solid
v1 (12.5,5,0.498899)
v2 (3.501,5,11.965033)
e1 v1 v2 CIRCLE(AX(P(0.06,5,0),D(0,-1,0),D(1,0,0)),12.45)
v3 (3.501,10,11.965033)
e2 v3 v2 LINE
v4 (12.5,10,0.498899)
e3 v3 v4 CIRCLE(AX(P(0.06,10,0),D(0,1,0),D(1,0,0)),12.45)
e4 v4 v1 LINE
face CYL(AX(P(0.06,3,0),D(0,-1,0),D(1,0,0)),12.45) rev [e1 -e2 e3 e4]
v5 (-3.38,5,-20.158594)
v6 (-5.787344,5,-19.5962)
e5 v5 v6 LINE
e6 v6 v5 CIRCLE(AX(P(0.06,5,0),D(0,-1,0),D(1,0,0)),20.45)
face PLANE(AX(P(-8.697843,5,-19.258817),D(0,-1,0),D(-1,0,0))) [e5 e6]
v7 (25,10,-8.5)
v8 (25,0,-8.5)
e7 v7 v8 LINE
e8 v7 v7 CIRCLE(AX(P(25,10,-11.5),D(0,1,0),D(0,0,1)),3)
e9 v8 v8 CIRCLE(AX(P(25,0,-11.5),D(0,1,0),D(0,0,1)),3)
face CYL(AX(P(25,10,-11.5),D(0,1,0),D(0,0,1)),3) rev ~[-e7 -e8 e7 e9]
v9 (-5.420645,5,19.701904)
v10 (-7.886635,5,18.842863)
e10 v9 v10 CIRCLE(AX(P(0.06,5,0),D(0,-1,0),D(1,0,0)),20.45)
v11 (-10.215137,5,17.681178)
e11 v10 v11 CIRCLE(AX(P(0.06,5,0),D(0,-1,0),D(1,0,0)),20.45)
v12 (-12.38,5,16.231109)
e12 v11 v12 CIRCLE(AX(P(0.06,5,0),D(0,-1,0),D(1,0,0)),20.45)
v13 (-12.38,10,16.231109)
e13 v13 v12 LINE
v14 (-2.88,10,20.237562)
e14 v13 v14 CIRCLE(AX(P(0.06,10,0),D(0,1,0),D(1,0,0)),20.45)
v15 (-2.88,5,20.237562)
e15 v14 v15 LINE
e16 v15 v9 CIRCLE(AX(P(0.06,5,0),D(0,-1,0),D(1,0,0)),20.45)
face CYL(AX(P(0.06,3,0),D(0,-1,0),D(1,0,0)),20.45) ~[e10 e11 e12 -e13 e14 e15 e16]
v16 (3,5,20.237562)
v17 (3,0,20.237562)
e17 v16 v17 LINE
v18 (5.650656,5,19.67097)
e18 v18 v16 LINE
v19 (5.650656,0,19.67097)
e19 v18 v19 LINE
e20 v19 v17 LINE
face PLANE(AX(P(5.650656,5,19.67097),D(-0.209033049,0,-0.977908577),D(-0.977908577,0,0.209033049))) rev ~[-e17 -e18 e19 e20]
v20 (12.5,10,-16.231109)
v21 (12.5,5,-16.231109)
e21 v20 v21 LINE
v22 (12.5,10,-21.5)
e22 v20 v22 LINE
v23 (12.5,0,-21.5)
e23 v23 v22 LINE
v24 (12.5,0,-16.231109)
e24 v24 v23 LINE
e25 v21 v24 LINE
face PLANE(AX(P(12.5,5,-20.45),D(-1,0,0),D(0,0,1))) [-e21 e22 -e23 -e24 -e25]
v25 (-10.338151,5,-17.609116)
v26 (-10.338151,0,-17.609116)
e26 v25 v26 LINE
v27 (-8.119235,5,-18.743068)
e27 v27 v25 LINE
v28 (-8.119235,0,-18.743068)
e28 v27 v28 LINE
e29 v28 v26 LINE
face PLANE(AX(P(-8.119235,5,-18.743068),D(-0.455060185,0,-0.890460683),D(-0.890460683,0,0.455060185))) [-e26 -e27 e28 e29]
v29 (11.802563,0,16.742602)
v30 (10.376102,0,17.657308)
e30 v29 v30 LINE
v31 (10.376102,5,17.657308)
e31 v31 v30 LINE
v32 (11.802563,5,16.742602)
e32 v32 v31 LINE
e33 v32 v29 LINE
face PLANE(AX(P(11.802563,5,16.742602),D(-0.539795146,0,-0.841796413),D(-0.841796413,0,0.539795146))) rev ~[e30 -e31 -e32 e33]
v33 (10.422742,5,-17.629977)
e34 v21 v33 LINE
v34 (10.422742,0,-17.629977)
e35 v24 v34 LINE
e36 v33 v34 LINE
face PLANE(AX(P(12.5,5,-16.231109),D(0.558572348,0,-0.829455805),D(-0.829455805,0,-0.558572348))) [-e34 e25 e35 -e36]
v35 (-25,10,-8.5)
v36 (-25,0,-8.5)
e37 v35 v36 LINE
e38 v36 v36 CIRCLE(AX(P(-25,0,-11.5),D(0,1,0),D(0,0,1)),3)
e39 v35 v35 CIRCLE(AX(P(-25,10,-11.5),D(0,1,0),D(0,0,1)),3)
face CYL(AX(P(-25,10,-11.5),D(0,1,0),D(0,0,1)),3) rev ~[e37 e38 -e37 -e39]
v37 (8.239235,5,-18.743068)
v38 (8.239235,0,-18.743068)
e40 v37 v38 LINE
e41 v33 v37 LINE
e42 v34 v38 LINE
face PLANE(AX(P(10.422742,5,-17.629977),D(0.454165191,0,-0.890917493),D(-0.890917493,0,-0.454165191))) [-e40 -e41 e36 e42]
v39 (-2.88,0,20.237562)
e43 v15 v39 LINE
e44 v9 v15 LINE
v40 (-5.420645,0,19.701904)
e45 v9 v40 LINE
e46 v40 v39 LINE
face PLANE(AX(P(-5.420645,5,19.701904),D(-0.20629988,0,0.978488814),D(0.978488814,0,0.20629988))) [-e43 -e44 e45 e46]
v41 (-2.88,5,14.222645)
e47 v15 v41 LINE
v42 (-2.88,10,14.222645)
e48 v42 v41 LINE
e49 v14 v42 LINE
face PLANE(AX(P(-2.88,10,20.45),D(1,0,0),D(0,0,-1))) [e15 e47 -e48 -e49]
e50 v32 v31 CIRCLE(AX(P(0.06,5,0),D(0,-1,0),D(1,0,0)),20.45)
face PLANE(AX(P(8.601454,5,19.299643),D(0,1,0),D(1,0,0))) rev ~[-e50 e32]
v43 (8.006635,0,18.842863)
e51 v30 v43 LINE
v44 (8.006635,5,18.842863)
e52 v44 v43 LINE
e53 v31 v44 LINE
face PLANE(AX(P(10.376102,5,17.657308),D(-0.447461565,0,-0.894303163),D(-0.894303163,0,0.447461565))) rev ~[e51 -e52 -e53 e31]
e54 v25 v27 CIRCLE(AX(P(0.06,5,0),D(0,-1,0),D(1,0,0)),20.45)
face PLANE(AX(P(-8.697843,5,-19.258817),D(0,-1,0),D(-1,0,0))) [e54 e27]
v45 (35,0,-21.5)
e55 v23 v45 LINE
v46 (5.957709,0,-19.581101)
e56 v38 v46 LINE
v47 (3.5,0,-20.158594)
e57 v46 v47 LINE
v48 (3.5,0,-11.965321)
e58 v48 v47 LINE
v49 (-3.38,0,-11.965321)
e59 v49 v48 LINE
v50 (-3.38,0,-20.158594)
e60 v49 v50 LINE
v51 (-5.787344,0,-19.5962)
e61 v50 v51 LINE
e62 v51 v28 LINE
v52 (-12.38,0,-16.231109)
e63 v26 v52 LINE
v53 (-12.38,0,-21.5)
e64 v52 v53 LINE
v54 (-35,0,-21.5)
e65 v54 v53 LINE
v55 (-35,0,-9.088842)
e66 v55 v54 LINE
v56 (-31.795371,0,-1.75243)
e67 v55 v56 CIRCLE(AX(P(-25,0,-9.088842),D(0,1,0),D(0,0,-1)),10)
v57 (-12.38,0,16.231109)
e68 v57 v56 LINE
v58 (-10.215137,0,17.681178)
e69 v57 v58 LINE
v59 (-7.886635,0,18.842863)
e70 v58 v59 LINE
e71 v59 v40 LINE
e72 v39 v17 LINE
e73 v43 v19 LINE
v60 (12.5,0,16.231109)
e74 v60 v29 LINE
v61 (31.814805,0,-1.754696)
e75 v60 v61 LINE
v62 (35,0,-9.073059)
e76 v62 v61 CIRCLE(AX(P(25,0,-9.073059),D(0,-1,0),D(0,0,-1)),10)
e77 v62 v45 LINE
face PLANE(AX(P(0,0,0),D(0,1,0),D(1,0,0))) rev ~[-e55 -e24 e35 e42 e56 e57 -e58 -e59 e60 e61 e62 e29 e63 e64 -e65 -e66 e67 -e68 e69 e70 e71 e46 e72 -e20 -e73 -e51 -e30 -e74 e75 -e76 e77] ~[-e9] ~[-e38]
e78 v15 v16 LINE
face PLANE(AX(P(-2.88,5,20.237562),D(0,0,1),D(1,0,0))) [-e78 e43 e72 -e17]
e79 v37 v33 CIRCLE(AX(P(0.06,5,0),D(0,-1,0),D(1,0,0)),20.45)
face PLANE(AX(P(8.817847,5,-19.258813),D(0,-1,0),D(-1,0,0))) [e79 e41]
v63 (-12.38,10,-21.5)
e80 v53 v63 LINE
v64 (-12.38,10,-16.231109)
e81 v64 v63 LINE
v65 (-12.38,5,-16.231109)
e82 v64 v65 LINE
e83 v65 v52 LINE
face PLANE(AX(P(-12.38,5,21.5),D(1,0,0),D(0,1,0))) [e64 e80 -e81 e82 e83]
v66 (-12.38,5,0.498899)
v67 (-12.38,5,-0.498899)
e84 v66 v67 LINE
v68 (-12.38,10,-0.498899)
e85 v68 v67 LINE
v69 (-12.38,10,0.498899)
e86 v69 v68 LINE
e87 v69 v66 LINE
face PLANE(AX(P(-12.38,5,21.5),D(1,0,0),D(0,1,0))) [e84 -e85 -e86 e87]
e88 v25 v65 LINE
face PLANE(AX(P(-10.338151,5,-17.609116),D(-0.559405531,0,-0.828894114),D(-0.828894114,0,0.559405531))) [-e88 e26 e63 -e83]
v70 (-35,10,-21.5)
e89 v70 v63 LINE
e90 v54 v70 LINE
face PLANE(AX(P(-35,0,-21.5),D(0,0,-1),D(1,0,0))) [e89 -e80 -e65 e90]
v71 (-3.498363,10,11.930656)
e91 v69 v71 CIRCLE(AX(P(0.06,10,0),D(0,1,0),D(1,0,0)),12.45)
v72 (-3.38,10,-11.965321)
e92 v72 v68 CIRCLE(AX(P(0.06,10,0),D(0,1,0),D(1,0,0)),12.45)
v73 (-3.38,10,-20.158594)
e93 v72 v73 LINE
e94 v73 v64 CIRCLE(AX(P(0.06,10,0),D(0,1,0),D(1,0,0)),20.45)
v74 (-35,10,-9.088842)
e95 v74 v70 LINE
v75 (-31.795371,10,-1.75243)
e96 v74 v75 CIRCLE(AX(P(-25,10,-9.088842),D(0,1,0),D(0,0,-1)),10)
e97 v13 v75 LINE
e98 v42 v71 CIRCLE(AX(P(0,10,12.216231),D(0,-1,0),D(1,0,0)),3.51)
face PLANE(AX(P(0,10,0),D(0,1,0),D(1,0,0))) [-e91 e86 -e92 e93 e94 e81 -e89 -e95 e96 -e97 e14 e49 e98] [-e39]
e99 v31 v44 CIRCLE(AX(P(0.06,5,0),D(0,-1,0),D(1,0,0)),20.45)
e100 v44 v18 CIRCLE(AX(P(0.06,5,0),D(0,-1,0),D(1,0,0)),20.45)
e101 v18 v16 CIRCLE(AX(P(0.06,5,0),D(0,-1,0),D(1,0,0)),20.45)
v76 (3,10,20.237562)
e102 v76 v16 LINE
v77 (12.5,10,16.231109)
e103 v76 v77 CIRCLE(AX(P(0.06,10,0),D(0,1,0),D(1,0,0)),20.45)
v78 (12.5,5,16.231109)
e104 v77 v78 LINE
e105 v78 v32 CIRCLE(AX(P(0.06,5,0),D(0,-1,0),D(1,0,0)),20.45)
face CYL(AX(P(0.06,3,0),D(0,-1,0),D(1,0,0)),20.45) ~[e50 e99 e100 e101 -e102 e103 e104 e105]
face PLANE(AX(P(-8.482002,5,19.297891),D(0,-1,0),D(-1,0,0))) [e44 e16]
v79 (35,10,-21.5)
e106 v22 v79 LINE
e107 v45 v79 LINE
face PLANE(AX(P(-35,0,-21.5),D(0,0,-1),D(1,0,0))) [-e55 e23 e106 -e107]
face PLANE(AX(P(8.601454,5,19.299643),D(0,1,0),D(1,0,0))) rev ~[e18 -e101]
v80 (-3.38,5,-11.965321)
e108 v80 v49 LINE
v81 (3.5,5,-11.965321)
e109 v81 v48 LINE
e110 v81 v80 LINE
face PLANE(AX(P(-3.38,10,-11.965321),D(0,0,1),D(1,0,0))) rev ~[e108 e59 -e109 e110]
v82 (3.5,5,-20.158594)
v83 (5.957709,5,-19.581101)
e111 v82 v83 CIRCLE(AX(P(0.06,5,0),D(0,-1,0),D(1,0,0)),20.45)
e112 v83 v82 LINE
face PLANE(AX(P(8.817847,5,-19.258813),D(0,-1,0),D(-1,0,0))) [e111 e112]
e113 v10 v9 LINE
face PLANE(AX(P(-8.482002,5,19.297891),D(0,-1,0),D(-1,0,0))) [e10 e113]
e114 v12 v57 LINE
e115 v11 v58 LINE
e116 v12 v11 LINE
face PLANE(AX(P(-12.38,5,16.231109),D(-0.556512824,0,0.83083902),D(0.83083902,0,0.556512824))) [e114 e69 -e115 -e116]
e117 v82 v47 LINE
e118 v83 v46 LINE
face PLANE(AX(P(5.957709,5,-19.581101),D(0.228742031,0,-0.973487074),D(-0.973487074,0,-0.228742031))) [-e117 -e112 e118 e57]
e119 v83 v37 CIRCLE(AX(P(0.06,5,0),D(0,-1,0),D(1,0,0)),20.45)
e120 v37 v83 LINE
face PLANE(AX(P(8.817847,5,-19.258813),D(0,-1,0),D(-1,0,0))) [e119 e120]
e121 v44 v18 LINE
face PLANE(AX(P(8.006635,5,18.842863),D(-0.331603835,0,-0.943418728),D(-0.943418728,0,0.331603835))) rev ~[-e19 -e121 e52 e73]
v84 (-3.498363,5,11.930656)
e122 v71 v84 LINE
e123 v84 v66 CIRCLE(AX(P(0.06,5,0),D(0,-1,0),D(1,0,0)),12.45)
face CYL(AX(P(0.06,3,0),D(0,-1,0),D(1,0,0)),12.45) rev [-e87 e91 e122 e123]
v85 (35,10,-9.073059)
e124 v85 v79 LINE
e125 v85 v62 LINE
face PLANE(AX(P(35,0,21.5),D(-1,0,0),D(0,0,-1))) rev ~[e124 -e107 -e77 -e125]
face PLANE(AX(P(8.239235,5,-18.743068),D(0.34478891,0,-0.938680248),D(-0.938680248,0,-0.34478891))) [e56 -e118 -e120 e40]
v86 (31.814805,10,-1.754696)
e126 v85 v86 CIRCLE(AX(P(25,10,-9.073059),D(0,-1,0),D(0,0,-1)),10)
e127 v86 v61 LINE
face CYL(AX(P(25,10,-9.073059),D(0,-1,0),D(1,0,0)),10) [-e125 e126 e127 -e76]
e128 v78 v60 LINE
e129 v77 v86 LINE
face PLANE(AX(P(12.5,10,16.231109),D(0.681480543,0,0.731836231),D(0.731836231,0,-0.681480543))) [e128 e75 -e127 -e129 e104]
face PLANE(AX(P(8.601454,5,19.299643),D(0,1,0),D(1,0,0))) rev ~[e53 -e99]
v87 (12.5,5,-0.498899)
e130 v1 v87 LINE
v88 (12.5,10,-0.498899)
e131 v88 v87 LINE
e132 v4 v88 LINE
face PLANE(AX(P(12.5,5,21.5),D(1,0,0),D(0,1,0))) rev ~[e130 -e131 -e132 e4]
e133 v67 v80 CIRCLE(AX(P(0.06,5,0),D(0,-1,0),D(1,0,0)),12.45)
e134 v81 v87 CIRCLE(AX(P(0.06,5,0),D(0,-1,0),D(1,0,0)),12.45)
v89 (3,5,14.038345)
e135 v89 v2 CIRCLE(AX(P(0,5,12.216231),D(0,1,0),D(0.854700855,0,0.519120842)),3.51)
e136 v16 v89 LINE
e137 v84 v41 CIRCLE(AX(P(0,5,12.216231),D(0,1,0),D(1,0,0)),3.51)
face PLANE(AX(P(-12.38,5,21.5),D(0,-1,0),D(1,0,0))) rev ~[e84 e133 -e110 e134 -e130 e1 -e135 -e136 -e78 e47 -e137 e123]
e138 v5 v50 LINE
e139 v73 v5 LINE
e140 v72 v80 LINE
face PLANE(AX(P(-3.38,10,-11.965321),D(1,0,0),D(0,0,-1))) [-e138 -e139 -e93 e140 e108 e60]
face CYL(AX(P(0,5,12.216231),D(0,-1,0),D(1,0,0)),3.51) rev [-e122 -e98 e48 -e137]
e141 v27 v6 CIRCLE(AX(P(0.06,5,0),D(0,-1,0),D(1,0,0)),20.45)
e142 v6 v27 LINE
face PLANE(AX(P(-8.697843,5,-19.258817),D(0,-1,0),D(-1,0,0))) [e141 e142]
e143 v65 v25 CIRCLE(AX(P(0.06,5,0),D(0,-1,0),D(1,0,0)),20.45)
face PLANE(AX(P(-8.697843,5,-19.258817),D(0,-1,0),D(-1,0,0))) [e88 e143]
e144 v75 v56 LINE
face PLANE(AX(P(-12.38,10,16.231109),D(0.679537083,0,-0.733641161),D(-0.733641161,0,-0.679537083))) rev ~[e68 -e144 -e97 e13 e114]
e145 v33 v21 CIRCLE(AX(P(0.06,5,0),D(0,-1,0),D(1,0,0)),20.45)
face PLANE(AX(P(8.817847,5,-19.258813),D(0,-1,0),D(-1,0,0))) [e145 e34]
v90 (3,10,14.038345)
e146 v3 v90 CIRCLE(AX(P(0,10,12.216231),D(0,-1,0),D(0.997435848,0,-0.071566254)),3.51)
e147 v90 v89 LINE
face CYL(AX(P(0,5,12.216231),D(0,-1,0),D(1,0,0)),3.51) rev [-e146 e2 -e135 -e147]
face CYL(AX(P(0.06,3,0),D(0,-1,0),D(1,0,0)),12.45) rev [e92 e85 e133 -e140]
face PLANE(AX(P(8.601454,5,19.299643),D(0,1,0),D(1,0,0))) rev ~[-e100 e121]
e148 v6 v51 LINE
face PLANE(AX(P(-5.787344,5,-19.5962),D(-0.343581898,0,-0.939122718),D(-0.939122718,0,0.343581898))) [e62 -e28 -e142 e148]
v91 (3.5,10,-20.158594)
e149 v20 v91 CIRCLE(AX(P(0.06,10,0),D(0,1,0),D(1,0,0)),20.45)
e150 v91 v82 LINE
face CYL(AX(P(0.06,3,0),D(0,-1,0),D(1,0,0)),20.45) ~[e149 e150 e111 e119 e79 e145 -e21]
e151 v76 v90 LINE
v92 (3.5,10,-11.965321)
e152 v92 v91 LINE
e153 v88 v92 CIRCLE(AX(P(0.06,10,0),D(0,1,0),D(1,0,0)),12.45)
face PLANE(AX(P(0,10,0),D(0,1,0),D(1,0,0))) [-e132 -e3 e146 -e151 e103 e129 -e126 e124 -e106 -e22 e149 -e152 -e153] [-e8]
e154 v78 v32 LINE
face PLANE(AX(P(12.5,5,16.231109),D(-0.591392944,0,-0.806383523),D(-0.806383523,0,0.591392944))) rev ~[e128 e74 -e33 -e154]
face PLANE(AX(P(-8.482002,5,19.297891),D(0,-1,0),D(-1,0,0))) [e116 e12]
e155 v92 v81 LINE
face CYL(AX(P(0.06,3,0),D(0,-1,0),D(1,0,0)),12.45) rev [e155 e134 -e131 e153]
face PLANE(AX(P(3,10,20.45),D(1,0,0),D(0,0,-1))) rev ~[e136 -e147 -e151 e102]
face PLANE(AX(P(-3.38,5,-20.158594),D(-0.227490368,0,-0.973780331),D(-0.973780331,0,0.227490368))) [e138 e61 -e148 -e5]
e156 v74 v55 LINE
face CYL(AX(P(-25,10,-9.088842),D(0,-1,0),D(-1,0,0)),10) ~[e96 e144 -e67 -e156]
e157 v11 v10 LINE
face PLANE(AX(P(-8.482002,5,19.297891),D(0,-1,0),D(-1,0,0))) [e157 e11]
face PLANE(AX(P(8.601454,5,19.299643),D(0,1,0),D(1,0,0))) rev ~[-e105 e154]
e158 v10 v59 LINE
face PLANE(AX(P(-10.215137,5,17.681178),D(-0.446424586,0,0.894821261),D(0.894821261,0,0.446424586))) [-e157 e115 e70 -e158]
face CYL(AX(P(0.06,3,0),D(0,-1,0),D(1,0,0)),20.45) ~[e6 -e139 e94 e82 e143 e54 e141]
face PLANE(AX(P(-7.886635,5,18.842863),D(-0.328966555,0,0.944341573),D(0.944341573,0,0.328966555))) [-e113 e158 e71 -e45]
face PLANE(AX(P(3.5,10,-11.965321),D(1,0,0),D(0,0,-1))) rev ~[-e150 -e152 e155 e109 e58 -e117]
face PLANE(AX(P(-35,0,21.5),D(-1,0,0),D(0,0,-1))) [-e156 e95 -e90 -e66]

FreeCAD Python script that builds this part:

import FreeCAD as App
import Part
import Sketcher

V = App.Vector


def edges_at(feature, points):
    """Names of the edges that pass closest to the given points."""
    edges = feature.Shape.Edges
    near = lambda p: min(range(len(edges)), key=lambda i: edges[i].distToShape(Part.Vertex(*p))[0])
    return sorted({f"Edge{near(p) + 1}" for p in points})


def add_polygon(sketch, points):
    """Adds a closed chain of lines whose ends are joined by coincident constraints."""
    first, n = sketch.GeometryCount, len(points)
    for a, b in zip(points, points[1:] + points[:1]):
        sketch.addGeometry(Part.LineSegment(App.Vector(*a, 0), App.Vector(*b, 0)), False)
    for i in range(n):
        sketch.addConstraint(Sketcher.Constraint("Coincident", first + i, 2, first + (i + 1) % n, 1))

doc = App.newDocument("Part")
body = doc.addObject("PartDesign::Body", "Body")

# Sketch on XZ plane
sketch1 = body.newObject("Sketcher::SketchObject", "Sketch")
sketch1.AttachmentSupport = (doc.getObject("XZ_Plane"), [""])
sketch1.MapMode = "FlatFace"
add_polygon(sketch1, [(-35, -21.5), (-35, 21.5), (35, 21.5), (35, -21.5)])  # lines 0-3
sketch1.addConstraint(Sketcher.Constraint("Vertical", 0))
sketch1.addConstraint(Sketcher.Constraint("Horizontal", 1))
sketch1.addConstraint(Sketcher.Constraint("Vertical", 2))
sketch1.addConstraint(Sketcher.Constraint("Horizontal", 3))
sketch1.addConstraint(Sketcher.Constraint("Symmetric", 0, 2, 2, 2, -1, 1))
sketch1.addConstraint(Sketcher.Constraint("DistanceX", 1, 1, 1, 2, 70.0))
sketch1.addConstraint(Sketcher.Constraint("DistanceY", 0, 1, 0, 2, 43.0))
pad1 = body.newObject("PartDesign::Pad", "Pad")
pad1.Profile = sketch1
pad1.Length = 10
pad1.Reversed = True

# Sketch on XY plane
sketch2 = body.newObject("Sketcher::SketchObject", "Sketch001")
sketch2.AttachmentSupport = (doc.getObject("XY_Plane"), [""])
sketch2.MapMode = "FlatFace"
sketch2.AttachmentOffset = App.Placement(V(0, 0, 21.5), App.Rotation())
add_polygon(sketch2, [(-12.38, 10), (-12.38, 5), (12.5, 5), (12.5, 10)])  # lines 0-3
sketch2.addConstraint(Sketcher.Constraint("Vertical", 0))
sketch2.addConstraint(Sketcher.Constraint("Horizontal", 1))
sketch2.addConstraint(Sketcher.Constraint("Vertical", 2))
sketch2.addConstraint(Sketcher.Constraint("Horizontal", 3))
sketch2.addConstraint(Sketcher.Constraint("DistanceY", 0, 2, 0, 1, 5.0))
sketch2.addConstraint(Sketcher.Constraint("DistanceY", -1, 1, 0, 2, 5.0))
sketch2.addConstraint(Sketcher.Constraint("DistanceX", 1, 1, 1, 2, 24.88))
sketch2.addConstraint(Sketcher.Constraint("DistanceX", -1, 1, 1, 2, 12.5))
pocket1 = body.newObject("PartDesign::Pocket", "Pocket")
pocket1.Profile = sketch2
pocket1.Type = "ThroughAll"

# Sketch on XZ plane
sketch3 = body.newObject("Sketcher::SketchObject", "Sketch002")
sketch3.AttachmentSupport = (doc.getObject("XZ_Plane"), [""])
sketch3.MapMode = "FlatFace"
sketch3.AttachmentOffset = App.Placement(V(0, 0, -5), App.Rotation())
sketch3.addGeometry(Part.Circle(V(0.06, 0, 0), V(0, 0, 1), 20.45), False)
sketch3.addGeometry(Part.Circle(V(0.06, 0, 0), V(0, 0, 1), 12.45), False)
sketch3.addConstraint(Sketcher.Constraint("Coincident", 1, 3, 0, 3))
sketch3.addConstraint(Sketcher.Constraint("PointOnObject", 0, 3, -1))
sketch3.addConstraint(Sketcher.Constraint("Diameter", 0, 40.9))
sketch3.addConstraint(Sketcher.Constraint("Diameter", 1, 24.9))
sketch3.addConstraint(Sketcher.Constraint("DistanceX", -1, 1, 0, 3, 0.06))
pad2 = body.newObject("PartDesign::Pad", "Pad001")
pad2.Profile = sketch3
pad2.Type = "TwoLengths"
pad2.Length = 5
pad2.Length2 = 2
pad2.Reversed = True

# Sketch on XZ plane
sketch4 = body.newObject("Sketcher::SketchObject", "Sketch003")
sketch4.AttachmentSupport = (doc.getObject("XZ_Plane"), [""])
sketch4.MapMode = "FlatFace"
sketch4.AttachmentOffset = App.Placement(V(0, 0, -5), App.Rotation())
add_polygon(sketch4, [(12.5, 20.45), (-12.38, 20.45), (-12.38, 21.5), (12.5, 21.5)])  # lines 0-3
sketch4.addConstraint(Sketcher.Constraint("Horizontal", 0))
sketch4.addConstraint(Sketcher.Constraint("Vertical", 1))
sketch4.addConstraint(Sketcher.Constraint("Horizontal", 2))
sketch4.addConstraint(Sketcher.Constraint("Vertical", 3))
sketch4.addConstraint(Sketcher.Constraint("DistanceX", 0, 2, 0, 1, 24.88))
sketch4.addConstraint(Sketcher.Constraint("DistanceY", 1, 1, 1, 2, 1.05))
sketch4.addConstraint(Sketcher.Constraint("DistanceY", -1, 1, 1, 2, 21.5))
sketch4.addConstraint(Sketcher.Constraint("DistanceX", -1, 1, 2, 2, 12.5))
pocket2 = body.newObject("PartDesign::Pocket", "Pocket001")
pocket2.Profile = sketch4
pocket2.Length = 5
pocket2.Reversed = True

# Sketch on XZ plane
sketch5 = body.newObject("Sketcher::SketchObject", "Sketch004")
sketch5.AttachmentSupport = (doc.getObject("XZ_Plane"), [""])
sketch5.MapMode = "FlatFace"
sketch5.AttachmentOffset = App.Placement(V(0, 0, -5), App.Rotation())
add_polygon(sketch5, [(12.5, -20.45), (12.5, -21.5), (-12.38, -21.5), (-12.38, -20.45)])  # lines 0-3
sketch5.addConstraint(Sketcher.Constraint("Vertical", 0))
sketch5.addConstraint(Sketcher.Constraint("Horizontal", 1))
sketch5.addConstraint(Sketcher.Constraint("Vertical", 2))
sketch5.addConstraint(Sketcher.Constraint("Horizontal", 3))
sketch5.addConstraint(Sketcher.Constraint("DistanceX", 1, 2, 1, 1, 24.88))
sketch5.addConstraint(Sketcher.Constraint("DistanceY", 0, 2, 0, 1, 1.05))
sketch5.addConstraint(Sketcher.Constraint("DistanceX", -1, 1, 0, 2, 12.5))
sketch5.addConstraint(Sketcher.Constraint("DistanceY", 0, 2, -1, 1, 21.5))
pocket3 = body.newObject("PartDesign::Pocket", "Pocket002")
pocket3.Profile = sketch5
pocket3.Length = 5
pocket3.Reversed = True

# Sketch on XZ plane
sketch6 = body.newObject("Sketcher::SketchObject", "Sketch005")
sketch6.AttachmentSupport = (doc.getObject("XZ_Plane"), [""])
sketch6.MapMode = "FlatFace"
sketch6.AttachmentOffset = App.Placement(V(0, 0, -10), App.Rotation())
add_polygon(sketch6, [(-2.88, -23.097888), (-2.88, -12.097888), (3, -12.097888), (3, -23.097888)])  # lines 0-3
sketch6.addConstraint(Sketcher.Constraint("Vertical", 0))
sketch6.addConstraint(Sketcher.Constraint("Horizontal", 1))
sketch6.addConstraint(Sketcher.Constraint("Vertical", 2))
sketch6.addConstraint(Sketcher.Constraint("Horizontal", 3))
sketch6.addConstraint(Sketcher.Constraint("DistanceY", 0, 1, 0, 2, 11.0))
sketch6.addConstraint(Sketcher.Constraint("DistanceX", -1, 1, 1, 2, 3.0))
sketch6.addConstraint(Sketcher.Constraint("DistanceX", 1, 1, 1, 2, 5.88))
sketch6.addConstraint(Sketcher.Constraint("DistanceY", 0, 2, -1, 1, 12.097888))
pocket4 = body.newObject("PartDesign::Pocket", "Pocket003")
pocket4.Profile = sketch6
pocket4.Length = 5
pocket4.Reversed = True

# Sketch on XZ plane
sketch7 = body.newObject("Sketcher::SketchObject", "Sketch006")
sketch7.AttachmentSupport = (doc.getObject("XZ_Plane"), [""])
sketch7.MapMode = "FlatFace"
sketch7.AttachmentOffset = App.Placement(V(0, 0, -10), App.Rotation())
add_polygon(sketch7, [(-2.88, 12.097888), (-2.88, 20.45), (3, 20.45), (3, 12.097888)])  # lines 0-3
sketch7.addConstraint(Sketcher.Constraint("Vertical", 0))
sketch7.addConstraint(Sketcher.Constraint("Horizontal", 1))
sketch7.addConstraint(Sketcher.Constraint("Vertical", 2))
sketch7.addConstraint(Sketcher.Constraint("Horizontal", 3))
sketch7.addConstraint(Sketcher.Constraint("DistanceX", -1, 1, 1, 2, 3.0))
sketch7.addConstraint(Sketcher.Constraint("DistanceX", 1, 1, 1, 2, 5.88))
sketch7.addConstraint(Sketcher.Constraint("DistanceY", -1, 1, 0, 2, 20.45))
sketch7.addConstraint(Sketcher.Constraint("DistanceY", 0, 1, 0, 2, 8.352112))
pocket5 = body.newObject("PartDesign::Pocket", "Pocket004")
pocket5.Profile = sketch7
pocket5.Length = 5
pocket5.Reversed = True

# Sketch on XZ plane
sketch8 = body.newObject("Sketcher::SketchObject", "Sketch007")
sketch8.AttachmentSupport = (doc.getObject("XZ_Plane"), [""])
sketch8.MapMode = "FlatFace"
sketch8.AttachmentOffset = App.Placement(V(0, 0, -5), App.Rotation())
add_polygon(sketch8, [(-2.88, -20.45), (-2.88, -20.237562), (3, -20.237562), (2.987558, -20.45)])  # lines 0-3
sketch8.addConstraint(Sketcher.Constraint("Vertical", 0))
sketch8.addConstraint(Sketcher.Constraint("Horizontal", 1))
sketch8.addConstraint(Sketcher.Constraint("Horizontal", 3))
sketch8.addConstraint(Sketcher.Constraint("DistanceX", -1, 1, 1, 2, 3.0))
sketch8.addConstraint(Sketcher.Constraint("DistanceX", 1, 1, 1, 2, 5.88))
sketch8.addConstraint(Sketcher.Constraint("DistanceY", 2, 2, -1, 1, 20.45))
sketch8.addConstraint(Sketcher.Constraint("DistanceX", 3, 2, 3, 1, 5.867558))
sketch8.addConstraint(Sketcher.Constraint("DistanceY", 0, 1, 0, 2, 0.212438))
pocket6 = body.newObject("PartDesign::Pocket", "Pocket005")
pocket6.Profile = sketch8
pocket6.Length = 5
pocket6.Reversed = True

# Sketch on XZ plane
sketch9 = body.newObject("Sketcher::SketchObject", "Sketch008")
sketch9.AttachmentSupport = (doc.getObject("XZ_Plane"), [""])
sketch9.MapMode = "FlatFace"
sketch9.AttachmentOffset = App.Placement(V(0, 0, -5), App.Rotation())
add_polygon(sketch9, [(3, 20.45), (3, 20.237562), (-2.88, 20.237562), (-2.887828, 20.45)])  # lines 0-3
sketch9.addConstraint(Sketcher.Constraint("Vertical", 0))
sketch9.addConstraint(Sketcher.Constraint("Horizontal", 1))
sketch9.addConstraint(Sketcher.Constraint("Horizontal", 3))
sketch9.addConstraint(Sketcher.Constraint("DistanceX", -1, 1, 0, 2, 3.0))
sketch9.addConstraint(Sketcher.Constraint("DistanceX", 1, 2, 1, 1, 5.88))
sketch9.addConstraint(Sketcher.Constraint("DistanceY", -1, 1, 2, 2, 20.45))
sketch9.addConstraint(Sketcher.Constraint("DistanceY", 0, 2, 0, 1, 0.212438))
sketch9.addConstraint(Sketcher.Constraint("DistanceX", 3, 1, 3, 2, 5.887828))
pocket7 = body.newObject("PartDesign::Pocket", "Pocket006")
pocket7.Profile = sketch9
pocket7.Length = 5
pocket7.Reversed = True

# Sketch on XZ plane
sketch10 = body.newObject("Sketcher::SketchObject", "Sketch009")
sketch10.AttachmentSupport = (doc.getObject("XZ_Plane"), [""])
sketch10.MapMode = "FlatFace"
sketch10.AttachmentOffset = App.Placement(V(0, 0, -10), App.Rotation())
sketch10.addGeometry(Part.Circle(V(-25, -11.5, 0), V(0, 0, 1), 3), False)
sketch10.addConstraint(Sketcher.Constraint("Diameter", 0, 6.0))
sketch10.addConstraint(Sketcher.Constraint("DistanceX", 0, 3, -1, 1, 25.0))
sketch10.addConstraint(Sketcher.Constraint("DistanceY", 0, 3, -1, 1, 11.5))
pocket8 = body.newObject("PartDesign::Pocket", "Pocket007")
pocket8.Profile = sketch10
pocket8.Type = "ThroughAll"
pocket8.Reversed = True

# Sketch on XZ plane
sketch11 = body.newObject("Sketcher::SketchObject", "Sketch010")
sketch11.AttachmentSupport = (doc.getObject("XZ_Plane"), [""])
sketch11.MapMode = "FlatFace"
sketch11.AttachmentOffset = App.Placement(V(0, 0, -10), App.Rotation())
sketch11.addGeometry(Part.Circle(V(25, -11.5, 0), V(0, 0, 1), 3), False)
sketch11.addConstraint(Sketcher.Constraint("Diameter", 0, 6.0))
sketch11.addConstraint(Sketcher.Constraint("DistanceX", -1, 1, 0, 3, 25.0))
sketch11.addConstraint(Sketcher.Constraint("DistanceY", 0, 3, -1, 1, 11.5))
pocket9 = body.newObject("PartDesign::Pocket", "Pocket008")
pocket9.Profile = sketch11
pocket9.Type = "ThroughAll"
pocket9.Reversed = True

# Sketch on XZ plane
sketch12 = body.newObject("Sketcher::SketchObject", "Sketch011")
sketch12.AttachmentSupport = (doc.getObject("XZ_Plane"), [""])
sketch12.MapMode = "FlatFace"
sketch12.AttachmentOffset = App.Placement(V(0, 0, -5), App.Rotation())
sketch12.addGeometry(Part.Circle(V(0, 12.216231, 0), V(0, 0, 1), 3.51), False)
sketch12.addConstraint(Sketcher.Constraint("PointOnObject", 0, 3, -2))
sketch12.addConstraint(Sketcher.Constraint("Diameter", 0, 7.02))
sketch12.addConstraint(Sketcher.Constraint("DistanceY", -1, 1, 0, 3, 12.216231))
pocket10 = body.newObject("PartDesign::Pocket", "Pocket009")
pocket10.Profile = sketch12
pocket10.Length = 7

# Sketch on XZ plane
sketch13 = body.newObject("Sketcher::SketchObject", "Sketch012")
sketch13.AttachmentSupport = (doc.getObject("XZ_Plane"), [""])
sketch13.MapMode = "FlatFace"
sketch13.AttachmentOffset = App.Placement(V(0, 0, -5), App.Rotation())
add_polygon(sketch13, [(-2.88, -20.237562), (-2.88, -12.097888), (3, -12.097888), (3, -20.237562)])  # lines 0-3
sketch13.addConstraint(Sketcher.Constraint("Vertical", 0))
sketch13.addConstraint(Sketcher.Constraint("Horizontal", 1))
sketch13.addConstraint(Sketcher.Constraint("Vertical", 2))
sketch13.addConstraint(Sketcher.Constraint("Horizontal", 3))
sketch13.addConstraint(Sketcher.Constraint("DistanceX", -1, 1, 1, 2, 3.0))
sketch13.addConstraint(Sketcher.Constraint("DistanceX", 1, 1, 1, 2, 5.88))
sketch13.addConstraint(Sketcher.Constraint("DistanceY", 0, 1, 0, 2, 8.139673))
sketch13.addConstraint(Sketcher.Constraint("DistanceY", 0, 2, -1, 1, 12.097888))
pocket11 = body.newObject("PartDesign::Pocket", "Pocket010")
pocket11.Profile = sketch13
pocket11.Length = 7
pocket11.Reversed = True

# Sketch on XZ plane
sketch14 = body.newObject("Sketcher::SketchObject", "Sketch013")
sketch14.AttachmentSupport = (doc.getObject("XZ_Plane"), [""])
sketch14.MapMode = "FlatFace"
sketch14.AttachmentOffset = App.Placement(V(0, 0, -10), App.Rotation())
add_polygon(sketch14, [(-3.38, -20.45), (-3.38, -11.965321), (3.5, -11.965321), (3.5, -20.45)])  # lines 0-3
sketch14.addConstraint(Sketcher.Constraint("Vertical", 0))
sketch14.addConstraint(Sketcher.Constraint("Horizontal", 1))
sketch14.addConstraint(Sketcher.Constraint("Vertical", 2))
sketch14.addConstraint(Sketcher.Constraint("Horizontal", 3))
sketch14.addConstraint(Sketcher.Constraint("DistanceX", 1, 1, 1, 2, 6.88))
sketch14.addConstraint(Sketcher.Constraint("DistanceX", -1, 1, 1, 2, 3.5))
sketch14.addConstraint(Sketcher.Constraint("DistanceY", 2, 2, -1, 1, 20.45))
sketch14.addConstraint(Sketcher.Constraint("DistanceY", 0, 1, 0, 2, 8.484679))
pocket12 = body.newObject("PartDesign::Pocket", "Pocket011")
pocket12.Profile = sketch14
pocket12.Length = 14.5
pocket12.Reversed = True

# Sketch on XZ plane
sketch15 = body.newObject("Sketcher::SketchObject", "Sketch014")
sketch15.AttachmentSupport = (doc.getObject("XZ_Plane"), [""])
sketch15.MapMode = "FlatFace"
sketch15.AttachmentOffset = App.Placement(V(0, 0, -5), App.Rotation())
add_polygon(sketch15, [(12.5, -16.231109), (12.5, -20.45), (3.5, -20.45), (3.5, -20.158594), (5.957709, -19.581101), (8.239235, -18.743068), (10.422742, -17.629977)])  # lines 0-6
sketch15.addConstraint(Sketcher.Constraint("Vertical", 0))
sketch15.addConstraint(Sketcher.Constraint("Horizontal", 1))
sketch15.addConstraint(Sketcher.Constraint("Vertical", 2))
sketch15.addConstraint(Sketcher.Constraint("DistanceX", 1, 2, 1, 1, 9.0))
sketch15.addConstraint(Sketcher.Constraint("DistanceX", -1, 1, 0, 2, 12.5))
sketch15.addConstraint(Sketcher.Constraint("DistanceY", 0, 2, -1, 1, 20.45))
sketch15.addConstraint(Sketcher.Constraint("DistanceY", 0, 2, 0, 1, 4.218891))
sketch15.addConstraint(Sketcher.Constraint("DistanceY", 3, 2, -1, 1, 19.581101))
sketch15.addConstraint(Sketcher.Constraint("Distance", 4, 2.430568))
sketch15.addConstraint(Sketcher.Constraint("Distance", 5, 2.450852))
sketch15.addConstraint(Sketcher.Constraint("DistanceY", 2, 1, 2, 2, 0.291406))
sketch15.addConstraint(Sketcher.Constraint("DistanceX", -1, 1, 3, 2, 5.957709))
sketch15.addConstraint(Sketcher.Constraint("DistanceY", 4, 2, -1, 1, 18.743068))
sketch15.addConstraint(Sketcher.Constraint("DistanceX", -1, 1, 5, 2, 10.422742))
pocket13 = body.newObject("PartDesign::Pocket", "Pocket012")
pocket13.Profile = sketch15
pocket13.Type = "ThroughAll"
pocket13.Reversed = True

# Sketch on XZ plane
sketch16 = body.newObject("Sketcher::SketchObject", "Sketch015")
sketch16.AttachmentSupport = (doc.getObject("XZ_Plane"), [""])
sketch16.MapMode = "FlatFace"
sketch16.AttachmentOffset = App.Placement(V(0, 0, -5), App.Rotation())
add_polygon(sketch16, [(-12.38, -20.45), (-12.38, -16.231109), (-10.338151, -17.609116), (-8.119235, -18.743068), (-5.787344, -19.5962), (-3.38, -20.158594), (-3.38, -20.45)])  # lines 0-6
sketch16.addConstraint(Sketcher.Constraint("Vertical", 0))
sketch16.addConstraint(Sketcher.Constraint("Vertical", 5))
sketch16.addConstraint(Sketcher.Constraint("Horizontal", 6))
sketch16.addConstraint(Sketcher.Constraint("DistanceX", 6, 2, 6, 1, 9.0))
sketch16.addConstraint(Sketcher.Constraint("DistanceX", 0, 2, -1, 1, 12.38))
sketch16.addConstraint(Sketcher.Constraint("DistanceY", 5, 2, -1, 1, 20.45))
sketch16.addConstraint(Sketcher.Constraint("DistanceY", 0, 1, 0, 2, 4.218891))
sketch16.addConstraint(Sketcher.Constraint("DistanceY", 3, 2, -1, 1, 19.5962))
sketch16.addConstraint(Sketcher.Constraint("Distance", 1, 2.463341))
sketch16.addConstraint(Sketcher.Constraint("DistanceY", 5, 2, 5, 1, 0.291406))
sketch16.addConstraint(Sketcher.Constraint("DistanceX", 1, 2, -1, 1, 10.338151))
sketch16.addConstraint(Sketcher.Constraint("DistanceY", 2, 2, -1, 1, 18.743068))
sketch16.addConstraint(Sketcher.Constraint("DistanceX", 2, 2, 3, 2, 2.331891))
sketch16.addConstraint(Sketcher.Constraint("Distance", 2, 2.491874))
pocket14 = body.newObject("PartDesign::Pocket", "Pocket013")
pocket14.Profile = sketch16
pocket14.Type = "ThroughAll"
pocket14.Reversed = True

# Sketch on XZ plane
sketch17 = body.newObject("Sketcher::SketchObject", "Sketch016")
sketch17.AttachmentSupport = (doc.getObject("XZ_Plane"), [""])
sketch17.MapMode = "FlatFace"
sketch17.AttachmentOffset = App.Placement(V(0, 0, -5), App.Rotation())
add_polygon(sketch17, [(-12.38, 16.231109), (-12.38, 20.45), (-2.887828, 20.45), (-2.88, 20.237562), (-5.420645, 19.701904), (-7.886635, 18.842863), (-10.215137, 17.681178)])  # lines 0-6
sketch17.addConstraint(Sketcher.Constraint("Vertical", 0))
sketch17.addConstraint(Sketcher.Constraint("Horizontal", 1))
sketch17.addConstraint(Sketcher.Constraint("DistanceX", 0, 2, 2, 2, 9.5))
sketch17.addConstraint(Sketcher.Constraint("DistanceX", 0, 2, -1, 1, 12.38))
sketch17.addConstraint(Sketcher.Constraint("DistanceY", -1, 1, 0, 2, 20.45))
sketch17.addConstraint(Sketcher.Constraint("Distance", 3, 2.596499))
sketch17.addConstraint(Sketcher.Constraint("DistanceY", 0, 1, 0, 2, 4.218891))
sketch17.addConstraint(Sketcher.Constraint("DistanceY", 4, 2, 2, 2, 1.394699))
sketch17.addConstraint(Sketcher.Constraint("DistanceX", 5, 2, 4, 2, 2.328502))
sketch17.addConstraint(Sketcher.Constraint("DistanceX", 1, 1, 1, 2, 9.492172))
sketch17.addConstraint(Sketcher.Constraint("DistanceY", -1, 1, 2, 2, 20.237562))
sketch17.addConstraint(Sketcher.Constraint("DistanceX", 4, 2, 3, 2, 2.46599))
sketch17.addConstraint(Sketcher.Constraint("DistanceY", 4, 2, 3, 2, 0.859041))
sketch17.addConstraint(Sketcher.Constraint("DistanceY", 6, 2, 5, 2, 1.450069))
pocket15 = body.newObject("PartDesign::Pocket", "Pocket014")
pocket15.Profile = sketch17
pocket15.Type = "ThroughAll"
pocket15.Reversed = True

# Sketch on XZ plane
sketch18 = body.newObject("Sketcher::SketchObject", "Sketch017")
sketch18.AttachmentSupport = (doc.getObject("XZ_Plane"), [""])
sketch18.MapMode = "FlatFace"
sketch18.AttachmentOffset = App.Placement(V(0, 0, -5), App.Rotation())
add_polygon(sketch18, [(3, 20.237562), (3, 20.45), (12.5, 20.45), (12.5, 16.231109), (11.802563, 16.742602), (10.376102, 17.657308), (8.006635, 18.842863), (5.650656, 19.67097)])  # lines 0-7
sketch18.addConstraint(Sketcher.Constraint("Vertical", 0))
sketch18.addConstraint(Sketcher.Constraint("Horizontal", 1))
sketch18.addConstraint(Sketcher.Constraint("Vertical", 2))
sketch18.addConstraint(Sketcher.Constraint("DistanceX", 1, 1, 1, 2, 9.5))
sketch18.addConstraint(Sketcher.Constraint("DistanceX", -1, 1, 0, 2, 3.0))
sketch18.addConstraint(Sketcher.Constraint("DistanceY", -1, 1, 0, 2, 20.45))
sketch18.addConstraint(Sketcher.Constraint("DistanceY", 0, 1, 0, 2, 0.212438))
sketch18.addConstraint(Sketcher.Constraint("DistanceY", 2, 2, 2, 1, 4.218891))
sketch18.addConstraint(Sketcher.Constraint("DistanceX", -1, 1, 4, 2, 10.376102))
sketch18.addConstraint(Sketcher.Constraint("DistanceY", 2, 2, 4, 2, 1.426199))
sketch18.addConstraint(Sketcher.Constraint("DistanceY", 5, 2, 7, 2, 1.394699))
sketch18.addConstraint(Sketcher.Constraint("Distance", 5, 2.649511))
sketch18.addConstraint(Sketcher.Constraint("Distance", 6, 2.497278))
sketch18.addConstraint(Sketcher.Constraint("DistanceY", -1, 1, 6, 2, 19.67097))
sketch18.addConstraint(Sketcher.Constraint("DistanceX", 4, 2, 3, 2, 1.426461))
sketch18.addConstraint(Sketcher.Constraint("DistanceY", 3, 2, 5, 2, 2.100261))
pocket16 = body.newObject("PartDesign::Pocket", "Pocket015")
pocket16.Profile = sketch18
pocket16.Length = 14.5
pocket16.Reversed = True

# Sketch on XZ plane
sketch19 = body.newObject("Sketcher::SketchObject", "Sketch018")
sketch19.AttachmentSupport = (doc.getObject("XZ_Plane"), [""])
sketch19.MapMode = "FlatFace"
sketch19.AttachmentOffset = App.Placement(V(0, 0, -10), App.Rotation())
add_polygon(sketch19, [(-35, 21.5), (-12.38, 21.5), (-12.38, 16.231109), (-35, -4.720726)])  # lines 0-3
sketch19.addConstraint(Sketcher.Constraint("Horizontal", 0))
sketch19.addConstraint(Sketcher.Constraint("Vertical", 1))
sketch19.addConstraint(Sketcher.Constraint("Vertical", 3))
sketch19.addConstraint(Sketcher.Constraint("DistanceX", 2, 2, -1, 1, 35.0))
sketch19.addConstraint(Sketcher.Constraint("DistanceX", 0, 1, 0, 2, 22.62))
sketch19.addConstraint(Sketcher.Constraint("DistanceY", -1, 1, 0, 2, 21.5))
sketch19.addConstraint(Sketcher.Constraint("DistanceY", 1, 2, 1, 1, 5.268891))
sketch19.addConstraint(Sketcher.Constraint("DistanceY", 3, 1, 3, 2, 26.220726))
pocket17 = body.newObject("PartDesign::Pocket", "Pocket016")
pocket17.Profile = sketch19
pocket17.Length = 14.5
pocket17.Reversed = True

# Sketch on XZ plane
sketch20 = body.newObject("Sketcher::SketchObject", "Sketch019")
sketch20.AttachmentSupport = (doc.getObject("XZ_Plane"), [""])
sketch20.MapMode = "FlatFace"
sketch20.AttachmentOffset = App.Placement(V(0, 0, -10), App.Rotation())
add_polygon(sketch20, [(35, 21.5), (35, -4.720726), (12.5, 16.231109), (12.5, 21.5)])  # lines 0-3
sketch20.addConstraint(Sketcher.Constraint("Vertical", 0))
sketch20.addConstraint(Sketcher.Constraint("Vertical", 2))
sketch20.addConstraint(Sketcher.Constraint("Horizontal", 3))
sketch20.addConstraint(Sketcher.Constraint("DistanceX", 3, 1, 3, 2, 22.5))
sketch20.addConstraint(Sketcher.Constraint("DistanceX", -1, 1, 0, 2, 35.0))
sketch20.addConstraint(Sketcher.Constraint("DistanceY", -1, 1, 2, 2, 21.5))
sketch20.addConstraint(Sketcher.Constraint("DistanceY", 2, 1, 2, 2, 5.268891))
sketch20.addConstraint(Sketcher.Constraint("DistanceY", 0, 2, 0, 1, 26.220726))
pocket18 = body.newObject("PartDesign::Pocket", "Pocket017")
pocket18.Profile = sketch20
pocket18.Length = 14.5
pocket18.Reversed = True
doc.recompute()

fillet = body.newObject("PartDesign::Fillet", "Fillet")
fillet.Base = (pocket18, edges_at(pocket18, [(-35, 5, -4.721), (35, 5, -4.721)]))
fillet.Radius = 10

doc.recompute()
